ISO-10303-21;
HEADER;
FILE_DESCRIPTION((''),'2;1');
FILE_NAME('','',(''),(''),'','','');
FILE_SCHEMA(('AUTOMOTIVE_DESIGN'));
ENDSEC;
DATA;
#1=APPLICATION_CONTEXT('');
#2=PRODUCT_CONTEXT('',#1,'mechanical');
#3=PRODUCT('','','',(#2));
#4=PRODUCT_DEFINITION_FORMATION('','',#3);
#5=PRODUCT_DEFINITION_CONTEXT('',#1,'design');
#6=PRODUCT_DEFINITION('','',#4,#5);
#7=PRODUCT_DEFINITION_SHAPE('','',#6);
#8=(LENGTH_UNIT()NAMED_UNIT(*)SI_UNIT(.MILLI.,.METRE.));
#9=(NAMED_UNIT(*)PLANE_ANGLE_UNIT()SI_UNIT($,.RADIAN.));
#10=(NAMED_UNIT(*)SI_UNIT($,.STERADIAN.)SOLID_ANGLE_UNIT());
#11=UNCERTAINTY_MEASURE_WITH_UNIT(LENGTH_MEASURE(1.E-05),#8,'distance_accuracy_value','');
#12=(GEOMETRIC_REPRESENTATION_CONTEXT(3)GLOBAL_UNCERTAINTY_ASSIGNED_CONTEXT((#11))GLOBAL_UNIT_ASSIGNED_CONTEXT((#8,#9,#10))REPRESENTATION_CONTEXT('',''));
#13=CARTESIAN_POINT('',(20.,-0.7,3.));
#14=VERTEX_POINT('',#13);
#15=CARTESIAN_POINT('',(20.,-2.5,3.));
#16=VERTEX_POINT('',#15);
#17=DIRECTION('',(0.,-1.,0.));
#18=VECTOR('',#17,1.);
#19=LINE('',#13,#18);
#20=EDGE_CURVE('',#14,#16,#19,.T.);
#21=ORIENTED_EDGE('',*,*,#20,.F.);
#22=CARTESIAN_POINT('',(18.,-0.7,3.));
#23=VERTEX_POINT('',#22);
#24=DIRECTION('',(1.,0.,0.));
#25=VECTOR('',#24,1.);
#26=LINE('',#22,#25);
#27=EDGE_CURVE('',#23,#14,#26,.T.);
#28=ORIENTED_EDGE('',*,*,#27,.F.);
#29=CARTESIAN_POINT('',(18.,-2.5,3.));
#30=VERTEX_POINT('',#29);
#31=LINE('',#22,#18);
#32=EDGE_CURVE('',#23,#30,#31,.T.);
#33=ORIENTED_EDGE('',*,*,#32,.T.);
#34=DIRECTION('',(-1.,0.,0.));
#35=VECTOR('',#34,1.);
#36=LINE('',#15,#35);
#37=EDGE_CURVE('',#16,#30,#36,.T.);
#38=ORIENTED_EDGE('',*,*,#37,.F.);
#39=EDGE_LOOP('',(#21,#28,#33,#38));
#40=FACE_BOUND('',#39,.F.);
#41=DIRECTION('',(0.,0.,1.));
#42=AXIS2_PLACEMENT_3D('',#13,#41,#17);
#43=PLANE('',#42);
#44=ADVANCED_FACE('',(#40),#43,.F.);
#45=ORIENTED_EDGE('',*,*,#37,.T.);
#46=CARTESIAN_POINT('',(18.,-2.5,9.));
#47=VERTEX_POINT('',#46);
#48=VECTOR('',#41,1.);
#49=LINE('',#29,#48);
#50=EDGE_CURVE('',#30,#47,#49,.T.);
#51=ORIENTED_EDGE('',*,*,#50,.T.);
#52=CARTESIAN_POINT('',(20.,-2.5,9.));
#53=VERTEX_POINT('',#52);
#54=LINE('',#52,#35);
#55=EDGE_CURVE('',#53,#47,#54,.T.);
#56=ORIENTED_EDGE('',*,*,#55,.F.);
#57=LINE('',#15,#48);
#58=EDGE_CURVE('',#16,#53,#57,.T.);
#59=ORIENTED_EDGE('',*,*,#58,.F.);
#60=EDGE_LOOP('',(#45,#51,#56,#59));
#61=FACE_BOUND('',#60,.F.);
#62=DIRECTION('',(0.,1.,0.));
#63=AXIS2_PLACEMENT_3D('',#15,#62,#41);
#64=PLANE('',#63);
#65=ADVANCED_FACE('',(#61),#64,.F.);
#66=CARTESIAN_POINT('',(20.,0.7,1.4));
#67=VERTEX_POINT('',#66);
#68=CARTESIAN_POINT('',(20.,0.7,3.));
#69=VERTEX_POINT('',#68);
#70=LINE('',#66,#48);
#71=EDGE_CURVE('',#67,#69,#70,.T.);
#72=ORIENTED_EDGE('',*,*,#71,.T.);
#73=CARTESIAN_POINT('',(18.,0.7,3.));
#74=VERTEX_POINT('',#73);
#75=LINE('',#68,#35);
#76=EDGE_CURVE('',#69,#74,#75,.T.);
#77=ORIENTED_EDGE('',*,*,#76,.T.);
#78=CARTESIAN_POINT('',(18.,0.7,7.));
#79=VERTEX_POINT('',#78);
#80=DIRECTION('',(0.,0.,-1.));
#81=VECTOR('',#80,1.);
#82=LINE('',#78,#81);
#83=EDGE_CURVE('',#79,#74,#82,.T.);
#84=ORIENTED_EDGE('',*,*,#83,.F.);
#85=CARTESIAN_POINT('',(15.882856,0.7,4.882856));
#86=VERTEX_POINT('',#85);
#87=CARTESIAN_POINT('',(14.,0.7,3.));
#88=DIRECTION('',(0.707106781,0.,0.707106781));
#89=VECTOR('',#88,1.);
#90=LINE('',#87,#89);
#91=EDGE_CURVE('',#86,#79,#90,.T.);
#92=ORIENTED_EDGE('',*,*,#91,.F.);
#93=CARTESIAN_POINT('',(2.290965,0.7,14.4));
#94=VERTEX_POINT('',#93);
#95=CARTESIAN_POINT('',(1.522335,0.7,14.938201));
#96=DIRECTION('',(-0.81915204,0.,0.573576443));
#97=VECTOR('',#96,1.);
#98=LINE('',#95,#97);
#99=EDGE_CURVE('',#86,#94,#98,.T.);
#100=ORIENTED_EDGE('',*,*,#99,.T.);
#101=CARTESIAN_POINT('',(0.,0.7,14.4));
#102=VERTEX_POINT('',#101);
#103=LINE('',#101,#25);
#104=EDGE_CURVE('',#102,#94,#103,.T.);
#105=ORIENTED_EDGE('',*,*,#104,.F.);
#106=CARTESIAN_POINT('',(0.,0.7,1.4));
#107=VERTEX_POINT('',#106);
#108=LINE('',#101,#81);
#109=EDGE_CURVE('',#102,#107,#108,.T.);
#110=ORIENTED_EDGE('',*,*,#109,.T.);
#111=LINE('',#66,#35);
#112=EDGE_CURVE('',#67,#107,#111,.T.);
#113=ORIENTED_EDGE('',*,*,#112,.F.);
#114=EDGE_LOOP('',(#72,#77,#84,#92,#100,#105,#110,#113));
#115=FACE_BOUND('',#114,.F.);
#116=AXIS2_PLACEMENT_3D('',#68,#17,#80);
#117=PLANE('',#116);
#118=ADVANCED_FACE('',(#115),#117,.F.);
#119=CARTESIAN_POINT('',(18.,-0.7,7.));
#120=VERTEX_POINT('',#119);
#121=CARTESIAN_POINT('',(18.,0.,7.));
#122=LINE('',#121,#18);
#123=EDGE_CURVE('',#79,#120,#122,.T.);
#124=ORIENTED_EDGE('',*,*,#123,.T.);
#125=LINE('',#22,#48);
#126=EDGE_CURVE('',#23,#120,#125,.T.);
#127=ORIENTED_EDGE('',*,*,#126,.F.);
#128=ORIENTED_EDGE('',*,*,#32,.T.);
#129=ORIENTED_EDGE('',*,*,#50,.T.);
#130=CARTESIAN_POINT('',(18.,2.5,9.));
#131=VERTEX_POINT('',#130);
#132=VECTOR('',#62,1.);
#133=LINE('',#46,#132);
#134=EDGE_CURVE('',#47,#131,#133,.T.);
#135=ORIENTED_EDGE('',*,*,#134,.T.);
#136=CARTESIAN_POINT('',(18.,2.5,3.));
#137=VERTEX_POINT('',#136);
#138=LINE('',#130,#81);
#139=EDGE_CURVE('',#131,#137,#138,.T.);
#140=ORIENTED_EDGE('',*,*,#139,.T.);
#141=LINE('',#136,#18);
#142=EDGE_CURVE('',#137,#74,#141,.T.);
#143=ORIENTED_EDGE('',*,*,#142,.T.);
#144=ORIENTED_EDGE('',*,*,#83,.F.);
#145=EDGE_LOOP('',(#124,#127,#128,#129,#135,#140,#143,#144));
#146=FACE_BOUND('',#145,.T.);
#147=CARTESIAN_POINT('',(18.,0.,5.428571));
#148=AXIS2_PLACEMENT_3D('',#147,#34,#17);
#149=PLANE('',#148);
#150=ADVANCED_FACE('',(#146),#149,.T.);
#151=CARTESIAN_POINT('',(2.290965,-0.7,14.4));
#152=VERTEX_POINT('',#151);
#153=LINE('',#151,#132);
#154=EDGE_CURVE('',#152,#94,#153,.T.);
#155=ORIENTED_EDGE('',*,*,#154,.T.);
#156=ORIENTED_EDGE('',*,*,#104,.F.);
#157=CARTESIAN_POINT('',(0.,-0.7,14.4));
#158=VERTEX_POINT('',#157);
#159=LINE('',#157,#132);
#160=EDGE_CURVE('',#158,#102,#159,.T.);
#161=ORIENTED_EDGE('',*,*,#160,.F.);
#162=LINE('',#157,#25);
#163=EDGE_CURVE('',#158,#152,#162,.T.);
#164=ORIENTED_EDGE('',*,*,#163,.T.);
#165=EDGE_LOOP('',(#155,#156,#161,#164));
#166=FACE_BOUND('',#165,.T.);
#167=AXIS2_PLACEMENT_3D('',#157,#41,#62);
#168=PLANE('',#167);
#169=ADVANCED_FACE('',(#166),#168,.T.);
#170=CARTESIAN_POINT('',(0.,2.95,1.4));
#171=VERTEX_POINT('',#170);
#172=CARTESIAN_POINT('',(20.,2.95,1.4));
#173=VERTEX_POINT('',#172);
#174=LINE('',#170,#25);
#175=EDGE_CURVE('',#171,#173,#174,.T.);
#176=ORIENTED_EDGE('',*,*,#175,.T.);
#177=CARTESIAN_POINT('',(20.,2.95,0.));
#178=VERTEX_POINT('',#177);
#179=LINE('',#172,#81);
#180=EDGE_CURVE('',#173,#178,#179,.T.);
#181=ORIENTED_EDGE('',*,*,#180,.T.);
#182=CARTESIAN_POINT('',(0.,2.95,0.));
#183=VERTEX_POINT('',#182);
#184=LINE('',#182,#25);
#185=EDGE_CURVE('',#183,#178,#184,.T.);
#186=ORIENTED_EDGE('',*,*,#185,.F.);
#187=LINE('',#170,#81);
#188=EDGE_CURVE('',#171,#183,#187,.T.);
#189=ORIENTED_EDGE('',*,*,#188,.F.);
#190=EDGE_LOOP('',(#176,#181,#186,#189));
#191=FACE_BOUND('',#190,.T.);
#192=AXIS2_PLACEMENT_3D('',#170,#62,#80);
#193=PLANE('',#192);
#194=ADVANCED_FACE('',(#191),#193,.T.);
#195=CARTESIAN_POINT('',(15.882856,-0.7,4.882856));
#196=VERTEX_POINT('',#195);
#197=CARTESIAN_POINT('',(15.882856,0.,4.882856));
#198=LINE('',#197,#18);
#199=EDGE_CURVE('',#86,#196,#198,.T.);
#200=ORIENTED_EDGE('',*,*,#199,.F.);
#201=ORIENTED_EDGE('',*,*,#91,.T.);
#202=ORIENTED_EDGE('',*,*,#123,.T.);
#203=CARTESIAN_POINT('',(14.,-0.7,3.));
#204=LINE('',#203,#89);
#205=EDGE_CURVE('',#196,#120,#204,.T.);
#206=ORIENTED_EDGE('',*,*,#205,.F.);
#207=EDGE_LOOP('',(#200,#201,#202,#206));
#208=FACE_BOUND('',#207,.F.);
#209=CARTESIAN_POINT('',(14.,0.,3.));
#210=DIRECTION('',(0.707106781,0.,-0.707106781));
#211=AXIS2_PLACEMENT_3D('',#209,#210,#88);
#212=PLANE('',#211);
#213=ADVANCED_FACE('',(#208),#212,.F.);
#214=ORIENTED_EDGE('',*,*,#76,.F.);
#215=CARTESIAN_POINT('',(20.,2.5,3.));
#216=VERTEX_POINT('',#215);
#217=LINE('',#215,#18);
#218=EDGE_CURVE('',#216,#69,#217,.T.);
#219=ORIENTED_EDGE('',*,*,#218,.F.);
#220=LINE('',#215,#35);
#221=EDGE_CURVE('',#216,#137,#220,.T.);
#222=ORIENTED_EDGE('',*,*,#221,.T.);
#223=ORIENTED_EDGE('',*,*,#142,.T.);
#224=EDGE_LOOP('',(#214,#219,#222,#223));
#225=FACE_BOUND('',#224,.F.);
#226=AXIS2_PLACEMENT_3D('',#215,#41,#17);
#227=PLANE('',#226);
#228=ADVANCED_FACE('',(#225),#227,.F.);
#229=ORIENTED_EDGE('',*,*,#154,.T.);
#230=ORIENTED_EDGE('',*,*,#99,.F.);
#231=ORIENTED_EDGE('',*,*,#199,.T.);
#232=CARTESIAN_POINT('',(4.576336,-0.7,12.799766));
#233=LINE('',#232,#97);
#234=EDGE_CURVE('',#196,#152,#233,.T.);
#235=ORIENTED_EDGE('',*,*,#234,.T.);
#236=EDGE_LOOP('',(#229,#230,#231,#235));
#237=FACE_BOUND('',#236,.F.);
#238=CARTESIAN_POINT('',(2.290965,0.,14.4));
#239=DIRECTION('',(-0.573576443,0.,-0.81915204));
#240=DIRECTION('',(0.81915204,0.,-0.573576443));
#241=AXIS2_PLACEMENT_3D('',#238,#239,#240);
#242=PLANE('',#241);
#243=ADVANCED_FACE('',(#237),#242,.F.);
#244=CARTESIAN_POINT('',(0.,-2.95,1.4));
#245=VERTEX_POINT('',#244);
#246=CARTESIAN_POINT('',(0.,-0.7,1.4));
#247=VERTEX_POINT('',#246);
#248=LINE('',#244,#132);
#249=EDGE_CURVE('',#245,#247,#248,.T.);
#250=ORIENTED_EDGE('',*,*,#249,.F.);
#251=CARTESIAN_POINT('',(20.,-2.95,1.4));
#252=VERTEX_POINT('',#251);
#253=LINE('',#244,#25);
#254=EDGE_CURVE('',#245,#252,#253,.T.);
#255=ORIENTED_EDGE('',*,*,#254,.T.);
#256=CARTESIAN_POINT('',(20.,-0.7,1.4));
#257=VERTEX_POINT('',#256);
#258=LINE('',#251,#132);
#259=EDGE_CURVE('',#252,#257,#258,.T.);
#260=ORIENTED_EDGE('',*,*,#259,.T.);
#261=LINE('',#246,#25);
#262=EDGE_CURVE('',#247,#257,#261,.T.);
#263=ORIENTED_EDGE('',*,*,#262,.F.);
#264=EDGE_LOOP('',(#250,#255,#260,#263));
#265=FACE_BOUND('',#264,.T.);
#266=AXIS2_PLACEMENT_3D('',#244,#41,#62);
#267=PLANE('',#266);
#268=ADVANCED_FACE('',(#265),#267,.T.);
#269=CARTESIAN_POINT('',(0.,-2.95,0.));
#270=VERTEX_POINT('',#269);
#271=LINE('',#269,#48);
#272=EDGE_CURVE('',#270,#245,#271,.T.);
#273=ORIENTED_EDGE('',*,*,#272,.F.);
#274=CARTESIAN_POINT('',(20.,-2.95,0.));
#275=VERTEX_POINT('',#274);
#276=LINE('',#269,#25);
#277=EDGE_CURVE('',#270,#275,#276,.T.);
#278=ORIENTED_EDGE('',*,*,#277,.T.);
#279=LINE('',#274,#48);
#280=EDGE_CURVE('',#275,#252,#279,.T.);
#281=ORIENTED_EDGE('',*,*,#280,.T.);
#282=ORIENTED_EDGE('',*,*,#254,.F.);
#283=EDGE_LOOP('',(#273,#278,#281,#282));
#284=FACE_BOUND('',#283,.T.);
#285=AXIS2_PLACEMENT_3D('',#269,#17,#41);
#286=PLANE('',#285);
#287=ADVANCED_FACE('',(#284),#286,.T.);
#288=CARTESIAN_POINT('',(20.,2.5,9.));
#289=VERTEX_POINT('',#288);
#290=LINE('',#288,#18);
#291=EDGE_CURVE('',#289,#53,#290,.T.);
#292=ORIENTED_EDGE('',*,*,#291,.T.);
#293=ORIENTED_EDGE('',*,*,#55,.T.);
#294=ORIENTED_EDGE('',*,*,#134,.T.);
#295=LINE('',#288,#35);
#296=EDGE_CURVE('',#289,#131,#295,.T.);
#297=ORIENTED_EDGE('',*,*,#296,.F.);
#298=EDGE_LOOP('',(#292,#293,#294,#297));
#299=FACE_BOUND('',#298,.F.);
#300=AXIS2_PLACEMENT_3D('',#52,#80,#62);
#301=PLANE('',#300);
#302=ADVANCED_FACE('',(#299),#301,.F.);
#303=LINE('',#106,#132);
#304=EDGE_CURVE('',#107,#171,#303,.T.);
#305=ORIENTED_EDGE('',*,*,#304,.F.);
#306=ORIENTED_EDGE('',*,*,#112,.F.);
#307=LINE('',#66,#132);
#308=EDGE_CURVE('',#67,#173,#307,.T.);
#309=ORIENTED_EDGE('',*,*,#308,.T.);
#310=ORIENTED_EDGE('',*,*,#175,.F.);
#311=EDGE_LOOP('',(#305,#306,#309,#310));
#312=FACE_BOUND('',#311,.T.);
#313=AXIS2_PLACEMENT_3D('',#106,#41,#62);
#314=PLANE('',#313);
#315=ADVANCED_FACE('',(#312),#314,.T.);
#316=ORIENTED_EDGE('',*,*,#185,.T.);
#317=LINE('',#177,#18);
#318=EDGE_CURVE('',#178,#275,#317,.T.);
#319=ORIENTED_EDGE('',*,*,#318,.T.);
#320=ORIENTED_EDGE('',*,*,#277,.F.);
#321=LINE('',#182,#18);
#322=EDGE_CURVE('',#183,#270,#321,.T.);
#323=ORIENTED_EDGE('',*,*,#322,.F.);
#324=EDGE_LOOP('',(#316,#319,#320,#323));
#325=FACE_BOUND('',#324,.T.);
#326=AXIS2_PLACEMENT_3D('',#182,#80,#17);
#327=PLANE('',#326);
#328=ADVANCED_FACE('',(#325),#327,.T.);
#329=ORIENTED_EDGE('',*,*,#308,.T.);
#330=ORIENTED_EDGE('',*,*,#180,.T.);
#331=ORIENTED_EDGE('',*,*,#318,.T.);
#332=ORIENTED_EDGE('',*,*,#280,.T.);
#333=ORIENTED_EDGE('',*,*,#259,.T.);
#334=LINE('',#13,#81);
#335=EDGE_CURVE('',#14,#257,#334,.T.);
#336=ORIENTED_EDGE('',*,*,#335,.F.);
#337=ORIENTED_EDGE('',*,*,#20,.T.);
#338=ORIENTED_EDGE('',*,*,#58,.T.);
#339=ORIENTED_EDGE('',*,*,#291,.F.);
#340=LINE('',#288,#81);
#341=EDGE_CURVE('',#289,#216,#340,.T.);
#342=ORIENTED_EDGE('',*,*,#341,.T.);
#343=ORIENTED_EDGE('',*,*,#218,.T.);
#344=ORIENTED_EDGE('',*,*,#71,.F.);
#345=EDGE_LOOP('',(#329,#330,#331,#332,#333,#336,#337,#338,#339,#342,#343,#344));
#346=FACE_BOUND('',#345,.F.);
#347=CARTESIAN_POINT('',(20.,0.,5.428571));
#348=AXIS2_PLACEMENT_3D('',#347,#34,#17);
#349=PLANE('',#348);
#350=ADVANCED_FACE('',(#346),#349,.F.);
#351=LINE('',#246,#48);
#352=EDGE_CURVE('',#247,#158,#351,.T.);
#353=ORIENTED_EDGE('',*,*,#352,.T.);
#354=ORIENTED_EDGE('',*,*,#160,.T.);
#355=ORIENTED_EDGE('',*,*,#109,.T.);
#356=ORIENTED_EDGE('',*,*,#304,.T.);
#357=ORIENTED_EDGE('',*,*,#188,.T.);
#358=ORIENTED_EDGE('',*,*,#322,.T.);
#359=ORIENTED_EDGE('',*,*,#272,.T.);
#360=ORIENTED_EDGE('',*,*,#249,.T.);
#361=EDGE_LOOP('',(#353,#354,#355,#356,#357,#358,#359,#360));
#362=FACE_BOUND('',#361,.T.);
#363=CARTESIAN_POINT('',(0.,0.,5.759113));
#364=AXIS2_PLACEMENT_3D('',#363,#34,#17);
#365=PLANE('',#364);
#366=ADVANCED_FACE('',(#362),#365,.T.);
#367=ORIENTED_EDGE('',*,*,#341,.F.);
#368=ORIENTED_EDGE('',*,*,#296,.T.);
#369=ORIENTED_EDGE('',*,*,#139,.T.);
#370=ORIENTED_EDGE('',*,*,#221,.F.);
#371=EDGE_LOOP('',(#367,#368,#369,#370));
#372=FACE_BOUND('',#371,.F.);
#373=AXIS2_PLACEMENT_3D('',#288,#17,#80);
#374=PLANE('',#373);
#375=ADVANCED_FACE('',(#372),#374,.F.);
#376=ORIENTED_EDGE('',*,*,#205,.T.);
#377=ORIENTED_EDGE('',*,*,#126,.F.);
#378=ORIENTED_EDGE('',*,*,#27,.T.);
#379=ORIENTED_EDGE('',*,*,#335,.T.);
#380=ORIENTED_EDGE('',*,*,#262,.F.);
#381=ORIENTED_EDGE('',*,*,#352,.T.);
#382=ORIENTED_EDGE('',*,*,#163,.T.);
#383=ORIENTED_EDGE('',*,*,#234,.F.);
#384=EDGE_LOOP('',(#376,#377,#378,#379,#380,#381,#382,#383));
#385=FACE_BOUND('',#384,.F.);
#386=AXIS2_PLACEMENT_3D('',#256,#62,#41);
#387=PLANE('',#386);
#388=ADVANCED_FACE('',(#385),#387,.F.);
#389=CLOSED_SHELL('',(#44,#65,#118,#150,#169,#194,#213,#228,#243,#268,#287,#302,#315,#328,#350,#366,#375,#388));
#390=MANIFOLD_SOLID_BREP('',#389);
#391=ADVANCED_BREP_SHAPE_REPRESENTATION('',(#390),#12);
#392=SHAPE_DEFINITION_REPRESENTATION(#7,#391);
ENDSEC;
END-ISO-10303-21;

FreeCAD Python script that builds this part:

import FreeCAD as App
import Part
import Sketcher
Q = App.Units.Quantity

doc = App.newDocument("Part")
body = doc.addObject("PartDesign::Body", "Body")

# Sketch on YZ plane
sketch1 = doc.addObject("Sketcher::SketchObject", "Sketch")
body.addObject(sketch1)
sketch1.AttachmentSupport = (doc.YZ_Plane, [""])
sketch1.MapMode = "FlatFace"
sketch1.addGeometry(Part.LineSegment(App.Vector(-2.95, 1.4, 0), App.Vector(-2.95, 0, 0)), False)
sketch1.addGeometry(Part.LineSegment(App.Vector(-2.95, 0, 0), App.Vector(2.95, 0, 0)), False)
sketch1.addGeometry(Part.LineSegment(App.Vector(2.95, 0, 0), App.Vector(2.95, 1.4, 0)), False)
sketch1.addGeometry(Part.LineSegment(App.Vector(2.95, 1.4, 0), App.Vector(0.7, 1.4, 0)), False)
sketch1.addGeometry(Part.LineSegment(App.Vector(0.7, 1.4, 0), App.Vector(0.7, 14.4, 0)), False)
sketch1.addGeometry(Part.LineSegment(App.Vector(0.7, 14.4, 0), App.Vector(-0.7, 14.4, 0)), False)
sketch1.addGeometry(Part.LineSegment(App.Vector(-0.7, 14.4, 0), App.Vector(-0.7, 1.4, 0)), False)
sketch1.addGeometry(Part.LineSegment(App.Vector(-0.7, 1.4, 0), App.Vector(-2.95, 1.4, 0)), False)
sketch1.addConstraint(Sketcher.Constraint("Coincident", 0, 2, 1, 1))
sketch1.addConstraint(Sketcher.Constraint("Coincident", 1, 2, 2, 1))
sketch1.addConstraint(Sketcher.Constraint("Coincident", 2, 2, 3, 1))
sketch1.addConstraint(Sketcher.Constraint("Coincident", 3, 2, 4, 1))
sketch1.addConstraint(Sketcher.Constraint("Coincident", 4, 2, 5, 1))
sketch1.addConstraint(Sketcher.Constraint("Coincident", 5, 2, 6, 1))
sketch1.addConstraint(Sketcher.Constraint("Coincident", 6, 2, 7, 1))
sketch1.addConstraint(Sketcher.Constraint("Coincident", 7, 2, 0, 1))
sketch1.addConstraint(Sketcher.Constraint("Vertical", 0))
sketch1.addConstraint(Sketcher.Constraint("Horizontal", 1))
sketch1.addConstraint(Sketcher.Constraint("Vertical", 2))
sketch1.addConstraint(Sketcher.Constraint("Horizontal", 3))
sketch1.addConstraint(Sketcher.Constraint("Vertical", 4))
sketch1.addConstraint(Sketcher.Constraint("Horizontal", 5))
sketch1.addConstraint(Sketcher.Constraint("Vertical", 6))
sketch1.addConstraint(Sketcher.Constraint("Horizontal", 7))
sketch1.addConstraint(Sketcher.Constraint("Symmetric", 0, 2, 1, 2, -1, 1))
sketch1.addConstraint(Sketcher.Constraint("Symmetric", 3, 2, 6, 2, -2))
sketch1.addConstraint(Sketcher.Constraint("Equal", 5, 0))
sketch1.addConstraint(Sketcher.Constraint("DistanceY", 4, 1, 4, 2, 13.0))
sketch1.addConstraint(Sketcher.Constraint("DistanceX", 1, 1, 1, 2, 5.9))
sketch1.addConstraint(Sketcher.Constraint("DistanceX", 5, 2, 5, 1, 1.4))
pad1 = doc.addObject("PartDesign::Pad", "Pad")
body.addObject(pad1)
pad1.Profile = sketch1
pad1.Length = 20

# Sketch on XZ plane
sketch2 = doc.addObject("Sketcher::SketchObject", "Sketch001")
body.addObject(sketch2)
sketch2.AttachmentSupport = (doc.XZ_Plane, [""])
sketch2.MapMode = "FlatFace"
sketch2.addGeometry(Part.LineSegment(App.Vector(20, 14.4, 0), App.Vector(2.290965, 14.4, 0)), False)
sketch2.addGeometry(Part.LineSegment(App.Vector(2.290965, 14.4, 0), App.Vector(20, 2, 0)), False)
sketch2.addGeometry(Part.LineSegment(App.Vector(20, 2, 0), App.Vector(20, 14.4, 0)), False)
sketch2.addConstraint(Sketcher.Constraint("Coincident", 0, 2, 1, 1))
sketch2.addConstraint(Sketcher.Constraint("Coincident", 1, 2, 2, 1))
sketch2.addConstraint(Sketcher.Constraint("Coincident", 2, 2, 0, 1))
sketch2.addConstraint(Sketcher.Constraint("Horizontal", 0))
sketch2.addConstraint(Sketcher.Constraint("Vertical", 2))
sketch2.addConstraint(Sketcher.Constraint("Angle", 1, Q("-35 deg")))
sketch2.addConstraint(Sketcher.Constraint("DistanceY", 2, 1, 2, 2, 12.4))
sketch2.addConstraint(Sketcher.Constraint("DistanceX", -1, 1, 1, 2, 20.0))
sketch2.addConstraint(Sketcher.Constraint("DistanceY", -1, 1, 1, 2, 2.0))
pocket1 = doc.addObject("PartDesign::Pocket", "Pocket")
body.addObject(pocket1)
pocket1.Profile = sketch2
pocket1.Type = "ThroughAll"
pocket1.Midplane = True

# Sketch on YZ plane
sketch3 = doc.addObject("Sketcher::SketchObject", "Sketch002")
body.addObject(sketch3)
sketch3.AttachmentSupport = (doc.YZ_Plane, [""])
sketch3.MapMode = "FlatFace"
sketch3.AttachmentOffset = App.Placement(App.Vector(0, 0, 20), App.Rotation())
sketch3.addGeometry(Part.LineSegment(App.Vector(2.5, 9, 0), App.Vector(-2.5, 9, 0)), False)
sketch3.addGeometry(Part.LineSegment(App.Vector(-2.5, 9, 0), App.Vector(-2.5, 3, 0)), False)
sketch3.addGeometry(Part.LineSegment(App.Vector(-2.5, 3, 0), App.Vector(-0.7, 3, 0)), False)
sketch3.addGeometry(Part.LineSegment(App.Vector(-0.7, 3, 0), App.Vector(-0.7, 1.4, 0)), False)
sketch3.addGeometry(Part.LineSegment(App.Vector(-0.7, 1.4, 0), App.Vector(0.7, 1.4, 0)), False)
sketch3.addGeometry(Part.LineSegment(App.Vector(0.7, 1.4, 0), App.Vector(0.7, 3, 0)), False)
sketch3.addGeometry(Part.LineSegment(App.Vector(0.7, 3, 0), App.Vector(2.5, 3, 0)), False)
sketch3.addGeometry(Part.LineSegment(App.Vector(2.5, 3, 0), App.Vector(2.5, 9, 0)), False)
sketch3.addConstraint(Sketcher.Constraint("Coincident", 0, 2, 1, 1))
sketch3.addConstraint(Sketcher.Constraint("Coincident", 1, 2, 2, 1))
sketch3.addConstraint(Sketcher.Constraint("Coincident", 2, 2, 3, 1))
sketch3.addConstraint(Sketcher.Constraint("Coincident", 3, 2, 4, 1))
sketch3.addConstraint(Sketcher.Constraint("Coincident", 4, 2, 5, 1))
sketch3.addConstraint(Sketcher.Constraint("Coincident", 5, 2, 6, 1))
sketch3.addConstraint(Sketcher.Constraint("Coincident", 6, 2, 7, 1))
sketch3.addConstraint(Sketcher.Constraint("Coincident", 7, 2, 0, 1))
sketch3.addConstraint(Sketcher.Constraint("Horizontal", 0))
sketch3.addConstraint(Sketcher.Constraint("Vertical", 1))
sketch3.addConstraint(Sketcher.Constraint("Horizontal", 2))
sketch3.addConstraint(Sketcher.Constraint("Vertical", 3))
sketch3.addConstraint(Sketcher.Constraint("Horizontal", 4))
sketch3.addConstraint(Sketcher.Constraint("Vertical", 5))
sketch3.addConstraint(Sketcher.Constraint("Horizontal", 6))
sketch3.addConstraint(Sketcher.Constraint("Vertical", 7))
sketch3.addConstraint(Sketcher.Constraint("Symmetric", 2, 2, 5, 2, -2))
sketch3.addConstraint(Sketcher.Constraint("Equal", 2, 6))
sketch3.addConstraint(Sketcher.Constraint("DistanceX", 0, 2, 0, 1, 5.0))
sketch3.addConstraint(Sketcher.Constraint("DistanceY", 1, 2, 1, 1, 6.0))
sketch3.addConstraint(Sketcher.Constraint("DistanceX", 2, 1, 2, 2, 1.8))
sketch3.addConstraint(Sketcher.Constraint("DistanceY", 3, 2, 3, 1, 1.6))
sketch3.addConstraint(Sketcher.Constraint("DistanceY", -1, 1, 0, 2, 9.0))
pad2 = doc.addObject("PartDesign::Pad", "Pad001")
body.addObject(pad2)
pad2.Profile = sketch3
pad2.Length = 2
pad2.Reversed = True

# Sketch on XZ plane
sketch4 = doc.addObject("Sketcher::SketchObject", "Sketch003")
body.addObject(sketch4)
sketch4.AttachmentSupport = (doc.XZ_Plane, [""])
sketch4.MapMode = "FlatFace"
sketch4.addGeometry(Part.LineSegment(App.Vector(14, 3, 0), App.Vector(20, 3, 0)), False)
sketch4.addGeometry(Part.LineSegment(App.Vector(20, 3, 0), App.Vector(20, 9, 0)), False)
sketch4.addGeometry(Part.LineSegment(App.Vector(20, 9, 0), App.Vector(14, 3, 0)), False)
sketch4.addConstraint(Sketcher.Constraint("Coincident", 0, 2, 1, 1))
sketch4.addConstraint(Sketcher.Constraint("Coincident", 1, 2, 2, 1))
sketch4.addConstraint(Sketcher.Constraint("Coincident", 2, 2, 0, 1))
sketch4.addConstraint(Sketcher.Constraint("Horizontal", 0))
sketch4.addConstraint(Sketcher.Constraint("Vertical", 1))
sketch4.addConstraint(Sketcher.Constraint("Equal", 0, 1))
sketch4.addConstraint(Sketcher.Constraint("DistanceX", 0, 1, 0, 2, 6.0))
sketch4.addConstraint(Sketcher.Constraint("DistanceX", -1, 1, 0, 2, 20.0))
sketch4.addConstraint(Sketcher.Constraint("DistanceY", -1, 1, 0, 2, 3.0))
pad3 = doc.addObject("PartDesign::Pad", "Pad002")
body.addObject(pad3)
pad3.Profile = sketch4
pad3.Length = 1.4
pad3.Midplane = True

doc.recompute()
